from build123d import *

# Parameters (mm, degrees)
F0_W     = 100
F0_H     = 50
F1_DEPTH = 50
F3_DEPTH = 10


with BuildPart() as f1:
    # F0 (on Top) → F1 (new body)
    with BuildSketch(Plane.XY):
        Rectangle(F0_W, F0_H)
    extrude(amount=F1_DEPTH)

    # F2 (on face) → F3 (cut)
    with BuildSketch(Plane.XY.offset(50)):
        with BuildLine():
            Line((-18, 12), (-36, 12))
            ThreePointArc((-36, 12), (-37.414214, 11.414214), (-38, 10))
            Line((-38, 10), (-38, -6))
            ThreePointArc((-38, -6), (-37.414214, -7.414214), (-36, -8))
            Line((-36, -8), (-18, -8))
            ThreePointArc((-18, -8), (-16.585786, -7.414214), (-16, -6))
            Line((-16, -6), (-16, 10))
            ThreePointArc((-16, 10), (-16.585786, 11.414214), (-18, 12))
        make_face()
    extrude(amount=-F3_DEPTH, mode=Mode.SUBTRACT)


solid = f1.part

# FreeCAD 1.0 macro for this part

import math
import FreeCAD as App
import Part
import Sketcher
Q = App.Units.Quantity

doc = App.newDocument("Part")
body = doc.addObject("PartDesign::Body", "Body")

# Sketch on XY plane
sketch1 = body.newObject("Sketcher::SketchObject", "Sketch")
sketch1.AttachmentSupport = (doc.getObject("XY_Plane"), [""])
sketch1.MapMode = "FlatFace"
sketch1.addGeometry([
    Part.LineSegment(App.Vector(-50, 25, 0), App.Vector(-50, -25, 0)),
    Part.LineSegment(App.Vector(-50, -25, 0), App.Vector(50, -25, 0)),
    Part.LineSegment(App.Vector(50, -25, 0), App.Vector(50, 25, 0)),
    Part.LineSegment(App.Vector(50, 25, 0), App.Vector(-50, 25, 0)),
], False)
sketch1.addConstraint([
    Sketcher.Constraint("Coincident", 0, 2, 1, 1),
    Sketcher.Constraint("Coincident", 1, 2, 2, 1),
    Sketcher.Constraint("Coincident", 2, 2, 3, 1),
    Sketcher.Constraint("Coincident", 3, 2, 0, 1),
    Sketcher.Constraint("Vertical", 0),
    Sketcher.Constraint("Horizontal", 1),
    Sketcher.Constraint("Vertical", 2),
    Sketcher.Constraint("Horizontal", 3),
    Sketcher.Constraint("Symmetric", 0, 2, 2, 2, -1, 1),
    Sketcher.Constraint("DistanceX", 1, 1, 1, 2, Q("100 mm")),
    Sketcher.Constraint("DistanceY", 0, 2, 0, 1, Q("50 mm")),
])
pad1 = body.newObject("PartDesign::Pad", "Pad")
pad1.Profile = sketch1
pad1.Length = 50

# Sketch on XY plane
sketch2 = body.newObject("Sketcher::SketchObject", "Sketch001")
sketch2.AttachmentSupport = (doc.getObject("XY_Plane"), [""])
sketch2.MapMode = "FlatFace"
sketch2.AttachmentOffset = App.Placement(App.Vector(0, 0, 50), App.Rotation())
sketch2.addGeometry([
    Part.LineSegment(App.Vector(-18, 12, 0), App.Vector(-36, 12, 0)),  # 0
    Part.ArcOfCircle(Part.Circle(App.Vector(-36, 10, 0), App.Vector(0, 0, 1), 2), math.radians(90), math.radians(180)),  # 1
    Part.LineSegment(App.Vector(-38, 10, 0), App.Vector(-38, -6, 0)),  # 2
    Part.ArcOfCircle(Part.Circle(App.Vector(-36, -6, 0), App.Vector(0, 0, 1), 2), math.radians(180), math.radians(270)),  # 3
    Part.LineSegment(App.Vector(-36, -8, 0), App.Vector(-18, -8, 0)),  # 4
    Part.ArcOfCircle(Part.Circle(App.Vector(-18, -6, 0), App.Vector(0, 0, 1), 2), math.radians(-90), math.radians(0)),  # 5
    Part.LineSegment(App.Vector(-16, -6, 0), App.Vector(-16, 10, 0)),  # 6
    Part.ArcOfCircle(Part.Circle(App.Vector(-18, 10, 0), App.Vector(0, 0, 1), 2), math.radians(0), math.radians(90)),  # 7
], False)
sketch2.addConstraint([
    Sketcher.Constraint("Tangent", 0, 2, 1, 1),
    Sketcher.Constraint("Tangent", 1, 2, 2, 1),
    Sketcher.Constraint("Tangent", 2, 2, 3, 1),
    Sketcher.Constraint("Tangent", 3, 2, 4, 1),
    Sketcher.Constraint("Tangent", 4, 2, 5, 1),
    Sketcher.Constraint("Tangent", 5, 2, 6, 1),
    Sketcher.Constraint("Tangent", 6, 2, 7, 1),
    Sketcher.Constraint("Tangent", 7, 2, 0, 1),
    Sketcher.Constraint("Horizontal", 0),
    Sketcher.Constraint("Vertical", 2),
    Sketcher.Constraint("Horizontal", 4),
    Sketcher.Constraint("Vertical", 6),
    Sketcher.Constraint("Equal", 1, 3),
    Sketcher.Constraint("Equal", 3, 5),
    Sketcher.Constraint("Equal", 5, 7),
    Sketcher.Constraint("Radius", 1, Q("1.999999 mm")),
    Sketcher.Constraint("DistanceX", 0, 2, 0, 1, Q("18 mm")),
    Sketcher.Constraint("DistanceY", 2, 2, 2, 1, Q("16 mm")),
    Sketcher.Constraint("DistanceX", 1, 3, -1, 1, Q("36.000001 mm")),
    Sketcher.Constraint("DistanceY", -1, 1, 1, 3, Q("10.000001 mm")),
])
pocket1 = body.newObject("PartDesign::Pocket", "Pocket")
pocket1.Profile = sketch2
pocket1.Length = 10

doc.recompute()
